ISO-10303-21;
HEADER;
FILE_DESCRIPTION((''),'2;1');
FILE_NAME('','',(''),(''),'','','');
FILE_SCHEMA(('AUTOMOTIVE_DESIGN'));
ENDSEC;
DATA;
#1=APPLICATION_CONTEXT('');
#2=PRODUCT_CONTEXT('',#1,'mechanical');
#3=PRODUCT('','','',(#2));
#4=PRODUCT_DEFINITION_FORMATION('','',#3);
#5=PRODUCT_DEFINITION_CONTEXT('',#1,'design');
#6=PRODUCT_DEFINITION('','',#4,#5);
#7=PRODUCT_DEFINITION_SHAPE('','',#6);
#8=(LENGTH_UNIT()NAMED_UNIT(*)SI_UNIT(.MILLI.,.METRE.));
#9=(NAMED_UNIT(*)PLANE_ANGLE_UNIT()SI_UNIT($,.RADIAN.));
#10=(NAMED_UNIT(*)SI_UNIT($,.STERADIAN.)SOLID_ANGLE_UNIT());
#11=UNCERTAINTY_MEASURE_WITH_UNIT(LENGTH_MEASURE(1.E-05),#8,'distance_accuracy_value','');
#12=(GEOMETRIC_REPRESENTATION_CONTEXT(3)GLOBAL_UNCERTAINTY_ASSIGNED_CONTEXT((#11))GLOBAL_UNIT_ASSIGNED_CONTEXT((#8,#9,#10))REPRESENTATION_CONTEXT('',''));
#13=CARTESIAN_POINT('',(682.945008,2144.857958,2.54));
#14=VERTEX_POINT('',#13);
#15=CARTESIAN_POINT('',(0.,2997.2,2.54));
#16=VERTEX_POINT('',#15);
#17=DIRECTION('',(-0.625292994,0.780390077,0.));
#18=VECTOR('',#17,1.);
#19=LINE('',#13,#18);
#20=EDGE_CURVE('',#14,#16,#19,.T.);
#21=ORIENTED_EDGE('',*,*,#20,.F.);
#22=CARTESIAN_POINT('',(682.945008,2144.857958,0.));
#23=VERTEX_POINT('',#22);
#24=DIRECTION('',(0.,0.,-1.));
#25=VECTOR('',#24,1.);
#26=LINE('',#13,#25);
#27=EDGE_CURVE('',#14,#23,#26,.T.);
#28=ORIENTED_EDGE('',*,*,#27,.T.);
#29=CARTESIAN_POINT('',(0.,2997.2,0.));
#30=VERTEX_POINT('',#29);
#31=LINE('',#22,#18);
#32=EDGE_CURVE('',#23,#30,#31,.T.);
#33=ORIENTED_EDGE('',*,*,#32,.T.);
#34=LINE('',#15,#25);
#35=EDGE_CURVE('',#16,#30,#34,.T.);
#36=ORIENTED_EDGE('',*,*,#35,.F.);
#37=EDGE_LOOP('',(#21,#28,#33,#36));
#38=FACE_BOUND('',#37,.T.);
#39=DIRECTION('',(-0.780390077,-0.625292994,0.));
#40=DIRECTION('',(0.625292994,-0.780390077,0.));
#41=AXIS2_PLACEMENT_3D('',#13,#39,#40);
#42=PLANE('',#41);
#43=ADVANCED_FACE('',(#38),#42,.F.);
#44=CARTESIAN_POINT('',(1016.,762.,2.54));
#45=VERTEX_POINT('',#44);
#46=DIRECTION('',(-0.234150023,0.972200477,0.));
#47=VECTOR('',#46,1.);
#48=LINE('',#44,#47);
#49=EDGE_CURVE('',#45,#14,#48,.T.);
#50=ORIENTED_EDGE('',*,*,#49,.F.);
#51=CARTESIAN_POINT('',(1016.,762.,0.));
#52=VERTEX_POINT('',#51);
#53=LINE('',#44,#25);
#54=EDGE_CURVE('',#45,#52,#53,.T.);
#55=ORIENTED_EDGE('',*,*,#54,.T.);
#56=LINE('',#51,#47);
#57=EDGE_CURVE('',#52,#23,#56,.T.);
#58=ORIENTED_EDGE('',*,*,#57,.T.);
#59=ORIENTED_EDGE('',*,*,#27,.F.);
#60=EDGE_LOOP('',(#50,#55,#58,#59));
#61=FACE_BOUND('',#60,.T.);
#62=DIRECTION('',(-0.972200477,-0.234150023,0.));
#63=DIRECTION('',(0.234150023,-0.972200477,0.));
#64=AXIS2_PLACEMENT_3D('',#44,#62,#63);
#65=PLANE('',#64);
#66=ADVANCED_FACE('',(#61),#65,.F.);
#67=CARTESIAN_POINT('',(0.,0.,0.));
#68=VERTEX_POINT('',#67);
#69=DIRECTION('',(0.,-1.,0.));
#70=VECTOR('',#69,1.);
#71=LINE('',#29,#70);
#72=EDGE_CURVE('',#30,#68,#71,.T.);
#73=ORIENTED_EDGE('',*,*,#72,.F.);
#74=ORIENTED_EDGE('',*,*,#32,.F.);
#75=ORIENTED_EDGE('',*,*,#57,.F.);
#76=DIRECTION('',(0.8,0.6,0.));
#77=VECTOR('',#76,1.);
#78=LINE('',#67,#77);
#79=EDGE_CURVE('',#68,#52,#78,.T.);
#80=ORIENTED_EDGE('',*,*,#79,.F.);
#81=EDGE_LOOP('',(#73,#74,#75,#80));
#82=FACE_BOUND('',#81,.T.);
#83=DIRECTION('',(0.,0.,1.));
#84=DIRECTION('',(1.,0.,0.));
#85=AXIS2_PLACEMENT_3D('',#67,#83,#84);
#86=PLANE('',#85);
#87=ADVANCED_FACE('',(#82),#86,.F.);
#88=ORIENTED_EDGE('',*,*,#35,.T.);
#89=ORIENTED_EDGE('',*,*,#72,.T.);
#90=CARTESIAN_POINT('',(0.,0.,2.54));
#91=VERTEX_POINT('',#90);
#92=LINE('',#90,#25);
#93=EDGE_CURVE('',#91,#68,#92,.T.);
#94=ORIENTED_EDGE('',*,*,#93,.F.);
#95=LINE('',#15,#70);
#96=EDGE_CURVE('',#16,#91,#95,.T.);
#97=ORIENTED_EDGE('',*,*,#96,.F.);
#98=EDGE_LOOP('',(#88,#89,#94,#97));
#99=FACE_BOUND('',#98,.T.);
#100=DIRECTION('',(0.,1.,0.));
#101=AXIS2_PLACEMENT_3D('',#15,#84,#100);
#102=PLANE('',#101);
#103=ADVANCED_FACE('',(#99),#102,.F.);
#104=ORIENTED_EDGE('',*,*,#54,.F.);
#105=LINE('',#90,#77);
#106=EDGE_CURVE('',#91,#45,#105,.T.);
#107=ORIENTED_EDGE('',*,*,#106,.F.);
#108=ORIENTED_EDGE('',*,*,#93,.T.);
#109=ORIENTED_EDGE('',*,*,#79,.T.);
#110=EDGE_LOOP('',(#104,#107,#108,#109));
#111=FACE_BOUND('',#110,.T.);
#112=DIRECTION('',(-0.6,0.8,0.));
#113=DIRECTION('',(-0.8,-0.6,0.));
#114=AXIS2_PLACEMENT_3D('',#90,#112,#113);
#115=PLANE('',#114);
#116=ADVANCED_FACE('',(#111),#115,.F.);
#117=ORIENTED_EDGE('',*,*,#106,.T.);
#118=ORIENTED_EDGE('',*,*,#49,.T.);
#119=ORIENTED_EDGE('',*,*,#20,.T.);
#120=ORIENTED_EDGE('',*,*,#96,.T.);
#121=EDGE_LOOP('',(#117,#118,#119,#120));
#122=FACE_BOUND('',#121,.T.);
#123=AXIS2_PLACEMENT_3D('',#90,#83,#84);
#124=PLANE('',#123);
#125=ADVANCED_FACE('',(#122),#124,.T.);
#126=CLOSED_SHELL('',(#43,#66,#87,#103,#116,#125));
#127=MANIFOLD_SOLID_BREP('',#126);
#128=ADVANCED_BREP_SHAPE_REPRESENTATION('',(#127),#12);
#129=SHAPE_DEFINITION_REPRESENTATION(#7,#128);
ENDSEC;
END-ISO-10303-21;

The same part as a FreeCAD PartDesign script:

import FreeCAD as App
import Part
import Sketcher

V = App.Vector
Q = App.Units.Quantity

doc = App.newDocument("Part")
body = doc.addObject("PartDesign::Body", "Body")

sketch1 = doc.addObject("Sketcher::SketchObject", "Sketch")
body.addObject(sketch1)
sketch1.AttachmentSupport = (doc.XY_Plane, [""])
sketch1.MapMode = "FlatFace"
sketch1.addGeometry(Part.LineSegment(V(0, 0, 0), V(1016, 762, 0)), False)
sketch1.addGeometry(Part.LineSegment(V(1016, 762, 0), V(682.945008, 2144.857958, 0)), False)
sketch1.addGeometry(Part.LineSegment(V(682.945008, 2144.857958, 0), V(0, 2997.2, 0)), False)
sketch1.addGeometry(Part.LineSegment(V(0, 2997.2, 0), V(0, 0, 0)), False)
sketch1.addConstraint(Sketcher.Constraint("Coincident", 0, 2, 1, 1))
sketch1.addConstraint(Sketcher.Constraint("Coincident", 1, 2, 2, 1))
sketch1.addConstraint(Sketcher.Constraint("Coincident", 2, 2, 3, 1))
sketch1.addConstraint(Sketcher.Constraint("Coincident", 3, 2, 0, 1))
sketch1.addConstraint(Sketcher.Constraint("Vertical", 3))
sketch1.addConstraint(Sketcher.Constraint("Coincident", 3, 2, -1, 1))
sketch1.addConstraint(Sketcher.Constraint("DistanceY", 3, 2, 3, 1, Q("118 in")))
sketch1.addConstraint(Sketcher.Constraint("Distance", 0, Q("50 in")))
sketch1.addConstraint(Sketcher.Constraint("Distance", 1, Q("56 in")))
sketch1.addConstraint(Sketcher.Constraint("Distance", 2, Q("43 in")))
sketch1.addConstraint(Sketcher.Constraint("DistanceX", -1, 1, 0, 2, Q("40 in")))
pad1 = doc.addObject("PartDesign::Pad", "Pad")
body.addObject(pad1)
pad1.Profile = sketch1
pad1.Length = Q("0.1 in")

doc.recompute()
